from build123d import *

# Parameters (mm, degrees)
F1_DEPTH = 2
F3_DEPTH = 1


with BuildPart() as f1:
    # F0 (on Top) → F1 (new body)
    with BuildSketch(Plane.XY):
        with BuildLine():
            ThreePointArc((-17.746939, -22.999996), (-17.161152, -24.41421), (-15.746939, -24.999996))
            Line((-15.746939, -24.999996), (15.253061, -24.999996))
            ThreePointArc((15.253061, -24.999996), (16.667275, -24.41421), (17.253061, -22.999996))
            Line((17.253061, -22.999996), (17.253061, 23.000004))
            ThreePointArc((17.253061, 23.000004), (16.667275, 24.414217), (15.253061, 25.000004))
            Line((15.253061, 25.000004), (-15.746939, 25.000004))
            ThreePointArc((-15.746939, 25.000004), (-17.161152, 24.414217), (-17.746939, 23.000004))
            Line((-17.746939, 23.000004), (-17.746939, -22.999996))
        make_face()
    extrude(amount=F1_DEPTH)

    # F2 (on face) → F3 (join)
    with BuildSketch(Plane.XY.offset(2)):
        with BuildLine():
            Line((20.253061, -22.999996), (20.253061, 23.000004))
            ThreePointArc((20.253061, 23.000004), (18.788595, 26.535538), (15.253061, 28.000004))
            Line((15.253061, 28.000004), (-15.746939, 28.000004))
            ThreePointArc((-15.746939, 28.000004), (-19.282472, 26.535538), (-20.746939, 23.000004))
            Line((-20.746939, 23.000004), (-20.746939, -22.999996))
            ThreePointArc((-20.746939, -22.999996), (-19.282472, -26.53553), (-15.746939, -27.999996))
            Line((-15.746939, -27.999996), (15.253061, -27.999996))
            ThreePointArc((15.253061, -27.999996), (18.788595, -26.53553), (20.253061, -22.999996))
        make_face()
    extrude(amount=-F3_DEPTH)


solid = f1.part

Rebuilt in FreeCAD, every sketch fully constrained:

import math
import FreeCAD as App
import Part
import Sketcher
from FreeCAD import Vector
Q = App.Units.Quantity

doc = App.newDocument("Part")
params = doc.addObject("Spreadsheet::Sheet", "Params")
for row, (alias, value) in enumerate([
    ("sketch1_radius", "2 mm"),
    ("sketch1_width", "31 mm"),
    ("sketch1_height", "46 mm"),
    ("pad1_length", "2 mm"),
    ("sketch2_radius", "5 mm"),
    ("sketch2_width", "31 mm"),
    ("sketch2_height", "46 mm"),
    ("pad2_length", "1 mm"),
], start=1):
    params.set(f"A{row}", alias)
    params.set(f"B{row}", "=" + value)
    params.setAlias(f"B{row}", alias)

body = doc.addObject("PartDesign::Body", "Body")

# Sketch on XY plane
sketch1 = body.newObject("Sketcher::SketchObject", "Sketch")
sketch1.AttachmentSupport = (doc.getObject("XY_Plane"), [""])
sketch1.MapMode = "FlatFace"
sketch1.addGeometry([
    Part.ArcOfCircle(Part.Circle(Vector(-15.746939, -22.999996, 0), Vector(0, 0, 1), 2), math.radians(-179.999994), math.radians(-90.000006)),  # 0
    Part.LineSegment(Vector(-15.746939, -24.999996, 0), Vector(15.253061, -24.999996, 0)),  # 1
    Part.ArcOfCircle(Part.Circle(Vector(15.253062, -22.999997, 0), Vector(0, 0, 1), 1.999999), math.radians(-90.000043), math.radians(0.000043)),  # 2
    Part.LineSegment(Vector(17.253061, -22.999996, 0), Vector(17.253061, 23.000004, 0)),  # 3
    Part.ArcOfCircle(Part.Circle(Vector(15.253061, 23.000004, 0), Vector(0, 0, 1), 2), math.radians(0.000006), math.radians(89.999994)),  # 4
    Part.LineSegment(Vector(15.253061, 25.000004, 0), Vector(-15.746939, 25.000004, 0)),  # 5
    Part.ArcOfCircle(Part.Circle(Vector(-15.746937, 23.000002, 0), Vector(0, 0, 1), 2.000002), math.radians(90.000055), math.radians(179.999945)),  # 6
    Part.LineSegment(Vector(-17.746939, 23.000004, 0), Vector(-17.746939, -22.999996, 0)),  # 7
], False)
sketch1.addConstraint([
    Sketcher.Constraint("Tangent", 0, 2, 1, 1),
    Sketcher.Constraint("Tangent", 1, 2, 2, 1),
    Sketcher.Constraint("Tangent", 2, 2, 3, 1),
    Sketcher.Constraint("Tangent", 3, 2, 4, 1),
    Sketcher.Constraint("Tangent", 4, 2, 5, 1),
    Sketcher.Constraint("Tangent", 5, 2, 6, 1),
    Sketcher.Constraint("Tangent", 6, 2, 7, 1),
    Sketcher.Constraint("Tangent", 7, 2, 0, 1),
    Sketcher.Constraint("Horizontal", 1),
    Sketcher.Constraint("Vertical", 3),
    Sketcher.Constraint("Horizontal", 5),
    Sketcher.Constraint("Vertical", 7),
    Sketcher.Constraint("Equal", 0, 2),
    Sketcher.Constraint("Equal", 2, 4),
    Sketcher.Constraint("Equal", 4, 6),
    Sketcher.Constraint("Radius", 0, Q("2 mm")),
    Sketcher.Constraint("DistanceX", 1, 1, 1, 2, Q("31 mm")),
    Sketcher.Constraint("DistanceY", 3, 1, 3, 2, Q("46 mm")),
    Sketcher.Constraint("DistanceX", 0, 3, -1, 1, Q("15.746939 mm")),
    Sketcher.Constraint("DistanceY", 0, 3, -1, 1, Q("22.999996 mm")),
])
sketch1.setExpression("Constraints[15]", "Params.sketch1_radius")
sketch1.setExpression("Constraints[16]", "Params.sketch1_width")
sketch1.setExpression("Constraints[17]", "Params.sketch1_height")
pad1 = body.newObject("PartDesign::Pad", "Pad")
pad1.Profile = sketch1
pad1.setExpression("Length", "Params.pad1_length")

# Sketch on XY plane
sketch2 = body.newObject("Sketcher::SketchObject", "Sketch001")
sketch2.AttachmentSupport = (doc.getObject("XY_Plane"), [""])
sketch2.MapMode = "FlatFace"
sketch2.AttachmentOffset = App.Placement(Vector(0, 0, 2), App.Rotation())
sketch2.addGeometry([
    Part.LineSegment(Vector(20.253061, -22.999996, 0), Vector(20.253061, 23.000004, 0)),  # 0
    Part.ArcOfCircle(Part.Circle(Vector(15.253061, 23.000004, 0), Vector(0, 0, 1), 5), math.radians(-0.000004), math.radians(90.000004)),  # 1
    Part.LineSegment(Vector(15.253061, 28.000004, 0), Vector(-15.746939, 28.000004, 0)),  # 2
    Part.ArcOfCircle(Part.Circle(Vector(-15.746938, 23.000003, 0), Vector(0, 0, 1), 5.000001), math.radians(90.000016), math.radians(179.999984)),  # 3
    Part.LineSegment(Vector(-20.746939, 23.000004, 0), Vector(-20.746939, -22.999996, 0)),  # 4
    Part.ArcOfCircle(Part.Circle(Vector(-15.746938, -22.999995, 0), Vector(0, 0, 1), 5.000001), math.radians(-179.999984), math.radians(-90.000016)),  # 5
    Part.LineSegment(Vector(-15.746939, -27.999996, 0), Vector(15.253061, -27.999996, 0)),  # 6
    Part.ArcOfCircle(Part.Circle(Vector(15.253061, -22.999996, 0), Vector(0, 0, 1), 5), math.radians(-90.000004), math.radians(0.000004)),  # 7
], False)
sketch2.addConstraint([
    Sketcher.Constraint("Tangent", 0, 2, 1, 1),
    Sketcher.Constraint("Tangent", 1, 2, 2, 1),
    Sketcher.Constraint("Tangent", 2, 2, 3, 1),
    Sketcher.Constraint("Tangent", 3, 2, 4, 1),
    Sketcher.Constraint("Tangent", 4, 2, 5, 1),
    Sketcher.Constraint("Tangent", 5, 2, 6, 1),
    Sketcher.Constraint("Tangent", 6, 2, 7, 1),
    Sketcher.Constraint("Tangent", 7, 2, 0, 1),
    Sketcher.Constraint("Vertical", 0),
    Sketcher.Constraint("Horizontal", 2),
    Sketcher.Constraint("Vertical", 4),
    Sketcher.Constraint("Horizontal", 6),
    Sketcher.Constraint("Equal", 1, 3),
    Sketcher.Constraint("Equal", 3, 5),
    Sketcher.Constraint("Equal", 5, 7),
    Sketcher.Constraint("Radius", 1, Q("5 mm")),
    Sketcher.Constraint("DistanceX", 2, 2, 2, 1, Q("31 mm")),
    Sketcher.Constraint("DistanceY", 0, 1, 0, 2, Q("46 mm")),
    Sketcher.Constraint("DistanceX", -1, 1, 1, 3, Q("15.253061 mm")),
    Sketcher.Constraint("DistanceY", -1, 1, 1, 3, Q("23.000004 mm")),
])
sketch2.setExpression("Constraints[15]", "Params.sketch2_radius")
sketch2.setExpression("Constraints[16]", "Params.sketch2_width")
sketch2.setExpression("Constraints[17]", "Params.sketch2_height")
pad2 = body.newObject("PartDesign::Pad", "Pad001")
pad2.Profile = sketch2
pad2.setExpression("Length", "Params.pad2_length")
pad2.Reversed = True

doc.recompute()
